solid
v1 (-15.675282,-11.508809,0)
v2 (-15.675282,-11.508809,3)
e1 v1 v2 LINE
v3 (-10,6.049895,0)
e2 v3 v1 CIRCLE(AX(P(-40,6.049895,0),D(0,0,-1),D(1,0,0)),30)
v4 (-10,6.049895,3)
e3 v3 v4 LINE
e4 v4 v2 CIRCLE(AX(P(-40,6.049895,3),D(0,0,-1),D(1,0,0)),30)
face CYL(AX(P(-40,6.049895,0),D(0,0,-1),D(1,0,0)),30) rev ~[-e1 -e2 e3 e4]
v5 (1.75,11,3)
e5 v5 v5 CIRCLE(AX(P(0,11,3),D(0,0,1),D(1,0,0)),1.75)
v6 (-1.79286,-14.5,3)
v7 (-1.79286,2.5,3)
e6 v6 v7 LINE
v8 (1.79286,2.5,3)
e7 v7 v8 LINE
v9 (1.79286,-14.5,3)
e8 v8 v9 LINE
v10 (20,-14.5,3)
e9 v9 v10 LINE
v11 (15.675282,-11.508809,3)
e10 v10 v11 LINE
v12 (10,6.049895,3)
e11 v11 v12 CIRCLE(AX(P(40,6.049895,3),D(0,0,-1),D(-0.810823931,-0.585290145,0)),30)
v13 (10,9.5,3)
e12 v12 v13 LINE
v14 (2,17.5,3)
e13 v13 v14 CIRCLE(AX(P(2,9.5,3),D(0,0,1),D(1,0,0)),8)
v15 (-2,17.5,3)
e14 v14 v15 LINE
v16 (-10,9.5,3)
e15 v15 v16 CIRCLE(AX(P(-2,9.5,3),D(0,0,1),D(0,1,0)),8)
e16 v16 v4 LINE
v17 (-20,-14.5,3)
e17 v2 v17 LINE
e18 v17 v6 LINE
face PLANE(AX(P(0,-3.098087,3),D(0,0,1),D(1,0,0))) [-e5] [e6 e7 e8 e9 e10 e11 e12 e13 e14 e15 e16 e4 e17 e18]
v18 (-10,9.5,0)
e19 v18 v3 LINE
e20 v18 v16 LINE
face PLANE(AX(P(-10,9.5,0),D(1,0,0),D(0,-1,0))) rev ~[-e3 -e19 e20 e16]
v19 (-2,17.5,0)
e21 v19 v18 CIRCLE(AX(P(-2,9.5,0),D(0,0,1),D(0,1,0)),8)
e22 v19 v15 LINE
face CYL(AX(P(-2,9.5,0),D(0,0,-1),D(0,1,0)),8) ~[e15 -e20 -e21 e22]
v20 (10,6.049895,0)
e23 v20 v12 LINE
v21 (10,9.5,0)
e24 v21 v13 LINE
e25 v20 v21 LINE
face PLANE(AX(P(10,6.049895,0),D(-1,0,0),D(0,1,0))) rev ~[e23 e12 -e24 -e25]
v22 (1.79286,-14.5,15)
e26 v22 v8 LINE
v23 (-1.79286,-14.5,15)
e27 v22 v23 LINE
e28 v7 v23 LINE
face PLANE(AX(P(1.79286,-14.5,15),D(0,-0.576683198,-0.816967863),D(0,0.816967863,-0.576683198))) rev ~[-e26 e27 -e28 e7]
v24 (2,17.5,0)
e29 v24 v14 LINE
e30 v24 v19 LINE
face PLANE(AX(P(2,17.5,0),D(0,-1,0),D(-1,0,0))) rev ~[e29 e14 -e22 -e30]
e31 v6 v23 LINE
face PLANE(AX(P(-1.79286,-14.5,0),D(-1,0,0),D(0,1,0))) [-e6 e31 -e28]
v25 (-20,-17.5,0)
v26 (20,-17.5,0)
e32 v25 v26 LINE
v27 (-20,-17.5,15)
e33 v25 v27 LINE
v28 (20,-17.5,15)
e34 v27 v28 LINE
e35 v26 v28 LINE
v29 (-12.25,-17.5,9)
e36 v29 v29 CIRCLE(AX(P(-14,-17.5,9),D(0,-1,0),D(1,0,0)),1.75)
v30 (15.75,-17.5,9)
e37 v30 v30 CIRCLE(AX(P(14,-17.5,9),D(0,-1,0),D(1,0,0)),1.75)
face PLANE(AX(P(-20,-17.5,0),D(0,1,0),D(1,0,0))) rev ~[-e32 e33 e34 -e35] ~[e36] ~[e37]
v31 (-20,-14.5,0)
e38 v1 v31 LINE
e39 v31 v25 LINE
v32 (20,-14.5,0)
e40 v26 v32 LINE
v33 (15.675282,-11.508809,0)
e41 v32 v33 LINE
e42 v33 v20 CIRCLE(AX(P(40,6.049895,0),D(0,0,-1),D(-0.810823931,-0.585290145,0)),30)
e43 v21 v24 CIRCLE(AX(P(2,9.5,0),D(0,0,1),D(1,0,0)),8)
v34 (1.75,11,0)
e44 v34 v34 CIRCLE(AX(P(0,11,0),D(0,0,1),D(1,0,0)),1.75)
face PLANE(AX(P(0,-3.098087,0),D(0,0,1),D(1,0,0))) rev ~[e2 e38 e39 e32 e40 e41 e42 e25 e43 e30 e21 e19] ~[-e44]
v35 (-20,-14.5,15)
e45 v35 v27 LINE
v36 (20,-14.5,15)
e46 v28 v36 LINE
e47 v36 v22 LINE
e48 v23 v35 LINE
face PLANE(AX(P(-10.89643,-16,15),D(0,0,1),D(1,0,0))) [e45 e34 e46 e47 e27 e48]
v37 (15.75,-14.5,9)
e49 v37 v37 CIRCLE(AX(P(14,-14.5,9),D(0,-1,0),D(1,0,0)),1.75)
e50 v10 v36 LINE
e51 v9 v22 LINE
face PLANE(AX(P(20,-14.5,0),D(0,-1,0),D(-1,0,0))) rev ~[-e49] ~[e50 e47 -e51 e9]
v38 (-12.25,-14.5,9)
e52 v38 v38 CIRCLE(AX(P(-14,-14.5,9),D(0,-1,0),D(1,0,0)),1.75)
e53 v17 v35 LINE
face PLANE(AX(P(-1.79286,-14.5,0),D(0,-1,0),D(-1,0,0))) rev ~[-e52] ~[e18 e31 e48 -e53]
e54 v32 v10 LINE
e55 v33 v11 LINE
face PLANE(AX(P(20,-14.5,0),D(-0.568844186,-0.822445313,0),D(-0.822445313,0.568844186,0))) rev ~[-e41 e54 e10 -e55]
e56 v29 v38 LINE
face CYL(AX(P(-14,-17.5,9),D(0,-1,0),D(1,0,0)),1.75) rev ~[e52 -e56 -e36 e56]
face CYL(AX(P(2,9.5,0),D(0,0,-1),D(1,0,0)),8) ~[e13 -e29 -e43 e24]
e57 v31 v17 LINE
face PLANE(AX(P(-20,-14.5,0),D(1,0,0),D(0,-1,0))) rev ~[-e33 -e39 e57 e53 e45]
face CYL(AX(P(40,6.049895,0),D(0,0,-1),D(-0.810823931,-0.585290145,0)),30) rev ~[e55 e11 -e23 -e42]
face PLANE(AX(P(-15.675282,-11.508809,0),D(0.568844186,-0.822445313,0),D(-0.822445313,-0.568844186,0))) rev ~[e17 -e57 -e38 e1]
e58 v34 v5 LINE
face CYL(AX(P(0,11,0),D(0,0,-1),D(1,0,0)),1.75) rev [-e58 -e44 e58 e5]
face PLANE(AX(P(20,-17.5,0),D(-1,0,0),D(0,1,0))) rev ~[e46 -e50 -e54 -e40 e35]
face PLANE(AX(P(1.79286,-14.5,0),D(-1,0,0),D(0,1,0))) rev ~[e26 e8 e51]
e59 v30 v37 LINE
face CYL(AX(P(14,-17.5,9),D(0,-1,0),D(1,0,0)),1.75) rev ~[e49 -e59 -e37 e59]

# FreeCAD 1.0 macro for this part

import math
import FreeCAD as App
import Part
import Sketcher

V = App.Vector
Q = App.Units.Quantity

doc = App.newDocument("Part")
body = doc.addObject("PartDesign::Body", "Body")

# Sketch on XY plane
sketch1 = body.newObject("Sketcher::SketchObject", "Sketch")
sketch1.AttachmentSupport = (doc.getObject("XY_Plane"), [""])
sketch1.MapMode = "FlatFace"
sketch1.addGeometry(Part.LineSegment(V(-20, -14.5, 0), V(-20, -17.5, 0)), False)
sketch1.addGeometry(Part.LineSegment(V(-20, -17.5, 0), V(20, -17.5, 0)), False)
sketch1.addGeometry(Part.LineSegment(V(20, -17.5, 0), V(20, -14.5, 0)), False)
sketch1.addGeometry(Part.LineSegment(V(20, -14.5, 0), V(1.79286, -14.5, 0)), False)
sketch1.addGeometry(Part.LineSegment(V(1.79286, -14.5, 0), V(1.79286, 2.5, 0)), False)
sketch1.addGeometry(Part.LineSegment(V(1.79286, 2.5, 0), V(-1.79286, 2.5, 0)), False)
sketch1.addGeometry(Part.LineSegment(V(-1.79286, 2.5, 0), V(-1.79286, -14.5, 0)), False)
sketch1.addGeometry(Part.LineSegment(V(-1.79286, -14.5, 0), V(-20, -14.5, 0)), False)
sketch1.addConstraint(Sketcher.Constraint("Coincident", 0, 2, 1, 1))
sketch1.addConstraint(Sketcher.Constraint("Coincident", 1, 2, 2, 1))
sketch1.addConstraint(Sketcher.Constraint("Coincident", 2, 2, 3, 1))
sketch1.addConstraint(Sketcher.Constraint("Coincident", 3, 2, 4, 1))
sketch1.addConstraint(Sketcher.Constraint("Coincident", 4, 2, 5, 1))
sketch1.addConstraint(Sketcher.Constraint("Coincident", 5, 2, 6, 1))
sketch1.addConstraint(Sketcher.Constraint("Coincident", 6, 2, 7, 1))
sketch1.addConstraint(Sketcher.Constraint("Coincident", 7, 2, 0, 1))
sketch1.addConstraint(Sketcher.Constraint("Vertical", 0))
sketch1.addConstraint(Sketcher.Constraint("Horizontal", 1))
sketch1.addConstraint(Sketcher.Constraint("Vertical", 2))
sketch1.addConstraint(Sketcher.Constraint("Horizontal", 3))
sketch1.addConstraint(Sketcher.Constraint("Vertical", 4))
sketch1.addConstraint(Sketcher.Constraint("Horizontal", 5))
sketch1.addConstraint(Sketcher.Constraint("Vertical", 6))
sketch1.addConstraint(Sketcher.Constraint("Horizontal", 7))
sketch1.addConstraint(Sketcher.Constraint("Symmetric", 3, 2, 6, 2, -2))
sketch1.addConstraint(Sketcher.Constraint("Equal", 3, 7))
sketch1.addConstraint(Sketcher.Constraint("DistanceX", 1, 1, 1, 2, Q("40 mm")))
sketch1.addConstraint(Sketcher.Constraint("DistanceY", 0, 2, 0, 1, Q("3 mm")))
sketch1.addConstraint(Sketcher.Constraint("DistanceY", 4, 1, 4, 2, Q("17 mm")))
sketch1.addConstraint(Sketcher.Constraint("DistanceY", 0, 2, -1, 1, Q("17.5 mm")))
sketch1.addConstraint(Sketcher.Constraint("DistanceX", 3, 2, 3, 1, Q("18.20714 mm")))
pad1 = body.newObject("PartDesign::Pad", "Pad")
pad1.Profile = sketch1
pad1.Length = 15

# Sketch on XY plane
sketch2 = body.newObject("Sketcher::SketchObject", "Sketch001")
sketch2.AttachmentSupport = (doc.getObject("XY_Plane"), [""])
sketch2.MapMode = "FlatFace"
sketch2.addGeometry(Part.ArcOfCircle(Part.Circle(V(2, 9.5, 0), V(0, 0, 1), 8), math.radians(0), math.radians(90)), False)
sketch2.addGeometry(Part.LineSegment(V(2, 17.5, 0), V(-2, 17.5, 0)), False)
sketch2.addGeometry(Part.ArcOfCircle(Part.Circle(V(-2, 9.5, 0), V(0, 0, 1), 8), math.radians(90), math.radians(180)), False)
sketch2.addGeometry(Part.LineSegment(V(-10, 9.5, 0), V(-10, 6.049895, 0)), False)
sketch2.addGeometry(Part.ArcOfCircle(Part.Circle(V(-40, 6.049895, 0), V(0, 0, 1), 30), math.radians(-35.82349), math.radians(0)), False)
sketch2.addGeometry(Part.LineSegment(V(-15.675282, -11.508809, 0), V(-20, -14.5, 0)), False)
sketch2.addGeometry(Part.LineSegment(V(-20, -14.5, 0), V(-1.79286, -14.5, 0)), False)
sketch2.addGeometry(Part.LineSegment(V(-1.79286, -14.5, 0), V(-1.79286, 2.5, 0)), False)
sketch2.addGeometry(Part.LineSegment(V(-1.79286, 2.5, 0), V(1.79286, 2.5, 0)), False)
sketch2.addGeometry(Part.LineSegment(V(1.79286, 2.5, 0), V(1.79286, -14.5, 0)), False)
sketch2.addGeometry(Part.LineSegment(V(1.79286, -14.5, 0), V(20, -14.5, 0)), False)
sketch2.addGeometry(Part.LineSegment(V(20, -14.5, 0), V(15.675282, -11.508809, 0)), False)
sketch2.addGeometry(Part.ArcOfCircle(Part.Circle(V(40, 6.049895, 0), V(0, 0, 1), 30), math.radians(180), math.radians(215.82349)), False)
sketch2.addGeometry(Part.LineSegment(V(10, 6.049895, 0), V(10, 9.5, 0)), False)
sketch2.addGeometry(Part.Circle(V(0, 11, 0), V(0, 0, 1), 1.75), False)
sketch2.addConstraint(Sketcher.Constraint("Tangent", 0, 2, 1, 1))
sketch2.addConstraint(Sketcher.Constraint("Tangent", 1, 2, 2, 1))
sketch2.addConstraint(Sketcher.Constraint("Tangent", 2, 2, 3, 1))
sketch2.addConstraint(Sketcher.Constraint("Tangent", 3, 2, 4, 2))
sketch2.addConstraint(Sketcher.Constraint("Coincident", 4, 1, 5, 1))
sketch2.addConstraint(Sketcher.Constraint("Coincident", 5, 2, 6, 1))
sketch2.addConstraint(Sketcher.Constraint("Coincident", 6, 2, 7, 1))
sketch2.addConstraint(Sketcher.Constraint("Coincident", 7, 2, 8, 1))
sketch2.addConstraint(Sketcher.Constraint("Coincident", 8, 2, 9, 1))
sketch2.addConstraint(Sketcher.Constraint("Coincident", 9, 2, 10, 1))
sketch2.addConstraint(Sketcher.Constraint("Coincident", 10, 2, 11, 1))
sketch2.addConstraint(Sketcher.Constraint("Coincident", 11, 2, 12, 2))
sketch2.addConstraint(Sketcher.Constraint("Tangent", 12, 1, 13, 1))
sketch2.addConstraint(Sketcher.Constraint("Tangent", 13, 2, 0, 1))
sketch2.addConstraint(Sketcher.Constraint("Horizontal", 1))
sketch2.addConstraint(Sketcher.Constraint("Vertical", 3))
sketch2.addConstraint(Sketcher.Constraint("Horizontal", 6))
sketch2.addConstraint(Sketcher.Constraint("Vertical", 7))
sketch2.addConstraint(Sketcher.Constraint("Horizontal", 8))
sketch2.addConstraint(Sketcher.Constraint("Vertical", 9))
sketch2.addConstraint(Sketcher.Constraint("Horizontal", 10))
sketch2.addConstraint(Sketcher.Constraint("Vertical", 13))
sketch2.addConstraint(Sketcher.Constraint("Equal", 0, 2))
sketch2.addConstraint(Sketcher.Constraint("Equal", 4, 12))
sketch2.addConstraint(Sketcher.Constraint("Symmetric", 4, 3, 12, 3, -2))
sketch2.addConstraint(Sketcher.Constraint("Symmetric", 6, 2, 9, 2, -2))
sketch2.addConstraint(Sketcher.Constraint("PointOnObject", 14, 3, -2))
sketch2.addConstraint(Sketcher.Constraint("Horizontal", 4, 1, 11, 2))
sketch2.addConstraint(Sketcher.Constraint("Equal", 6, 10))
sketch2.addConstraint(Sketcher.Constraint("Radius", 0, Q("8 mm")))
sketch2.addConstraint(Sketcher.Constraint("Radius", 4, Q("30 mm")))
sketch2.addConstraint(Sketcher.Constraint("Diameter", 14, Q("3.5 mm")))
sketch2.addConstraint(Sketcher.Constraint("DistanceX", 1, 2, 1, 1, Q("4 mm")))
sketch2.addConstraint(Sketcher.Constraint("DistanceY", 7, 1, 7, 2, Q("17 mm")))
sketch2.addConstraint(Sketcher.Constraint("DistanceY", -1, 1, 14, 3, Q("11 mm")))
sketch2.addConstraint(Sketcher.Constraint("DistanceX", 5, 2, -1, 1, Q("20 mm")))
sketch2.addConstraint(Sketcher.Constraint("DistanceY", 5, 2, 2, 2, Q("24 mm")))
sketch2.addConstraint(Sketcher.Constraint("DistanceY", -1, 1, 0, 3, Q("9.5 mm")))
sketch2.addConstraint(Sketcher.Constraint("DistanceX", 6, 1, 6, 2, Q("18.20714 mm")))
sketch2.addConstraint(Sketcher.Constraint("DistanceY", 3, 2, 3, 1, Q("3.450105 mm")))
sketch2.addConstraint(Sketcher.Constraint("DistanceY", 4, 1, -1, 1, Q("11.508809 mm")))
pad2 = body.newObject("PartDesign::Pad", "Pad001")
pad2.Profile = sketch2
pad2.Length = 3

# Sketch on YZ plane
sketch3 = body.newObject("Sketcher::SketchObject", "Sketch002")
sketch3.AttachmentSupport = (doc.getObject("YZ_Plane"), [""])
sketch3.MapMode = "FlatFace"
sketch3.AttachmentOffset = App.Placement(V(0, 0, 1.79286), App.Rotation())
sketch3.addGeometry(Part.LineSegment(V(2.5, 15, 0), V(-14.5, 15, 0)), False)
sketch3.addGeometry(Part.LineSegment(V(-14.5, 15, 0), V(2.5, 3, 0)), False)
sketch3.addGeometry(Part.LineSegment(V(2.5, 3, 0), V(2.5, 15, 0)), False)
sketch3.addConstraint(Sketcher.Constraint("Coincident", 0, 2, 1, 1))
sketch3.addConstraint(Sketcher.Constraint("Coincident", 1, 2, 2, 1))
sketch3.addConstraint(Sketcher.Constraint("Coincident", 2, 2, 0, 1))
sketch3.addConstraint(Sketcher.Constraint("Horizontal", 0))
sketch3.addConstraint(Sketcher.Constraint("Vertical", 2))
sketch3.addConstraint(Sketcher.Constraint("DistanceX", 0, 2, 0, 1, Q("17 mm")))
sketch3.addConstraint(Sketcher.Constraint("DistanceY", 2, 1, 2, 2, Q("12 mm")))
sketch3.addConstraint(Sketcher.Constraint("DistanceY", -1, 1, 0, 2, Q("15 mm")))
sketch3.addConstraint(Sketcher.Constraint("DistanceX", 0, 2, -1, 1, Q("14.5 mm")))
pocket1 = body.newObject("PartDesign::Pocket", "Pocket")
pocket1.Profile = sketch3
pocket1.Length = 25

# Sketch on XZ plane
sketch4 = body.newObject("Sketcher::SketchObject", "Sketch003")
sketch4.AttachmentSupport = (doc.getObject("XZ_Plane"), [""])
sketch4.MapMode = "FlatFace"
sketch4.AttachmentOffset = App.Placement(V(0, 0, 17.5), App.Rotation())
sketch4.addGeometry(Part.Circle(V(14, 9, 0), V(0, 0, 1), 1.75), False)
sketch4.addGeometry(Part.Circle(V(-14, 9, 0), V(0, 0, 1), 1.75), False)
sketch4.addConstraint(Sketcher.Constraint("Equal", 0, 1))
sketch4.addConstraint(Sketcher.Constraint("Symmetric", 0, 3, 1, 3, -2))
sketch4.addConstraint(Sketcher.Constraint("Diameter", 0, Q("3.5 mm")))
sketch4.addConstraint(Sketcher.Constraint("DistanceX", -1, 1, 0, 3, Q("14 mm")))
sketch4.addConstraint(Sketcher.Constraint("DistanceY", -1, 1, 0, 3, Q("9 mm")))
pocket2 = body.newObject("PartDesign::Pocket", "Pocket001")
pocket2.Profile = sketch4
pocket2.Length = 25

doc.recompute()
